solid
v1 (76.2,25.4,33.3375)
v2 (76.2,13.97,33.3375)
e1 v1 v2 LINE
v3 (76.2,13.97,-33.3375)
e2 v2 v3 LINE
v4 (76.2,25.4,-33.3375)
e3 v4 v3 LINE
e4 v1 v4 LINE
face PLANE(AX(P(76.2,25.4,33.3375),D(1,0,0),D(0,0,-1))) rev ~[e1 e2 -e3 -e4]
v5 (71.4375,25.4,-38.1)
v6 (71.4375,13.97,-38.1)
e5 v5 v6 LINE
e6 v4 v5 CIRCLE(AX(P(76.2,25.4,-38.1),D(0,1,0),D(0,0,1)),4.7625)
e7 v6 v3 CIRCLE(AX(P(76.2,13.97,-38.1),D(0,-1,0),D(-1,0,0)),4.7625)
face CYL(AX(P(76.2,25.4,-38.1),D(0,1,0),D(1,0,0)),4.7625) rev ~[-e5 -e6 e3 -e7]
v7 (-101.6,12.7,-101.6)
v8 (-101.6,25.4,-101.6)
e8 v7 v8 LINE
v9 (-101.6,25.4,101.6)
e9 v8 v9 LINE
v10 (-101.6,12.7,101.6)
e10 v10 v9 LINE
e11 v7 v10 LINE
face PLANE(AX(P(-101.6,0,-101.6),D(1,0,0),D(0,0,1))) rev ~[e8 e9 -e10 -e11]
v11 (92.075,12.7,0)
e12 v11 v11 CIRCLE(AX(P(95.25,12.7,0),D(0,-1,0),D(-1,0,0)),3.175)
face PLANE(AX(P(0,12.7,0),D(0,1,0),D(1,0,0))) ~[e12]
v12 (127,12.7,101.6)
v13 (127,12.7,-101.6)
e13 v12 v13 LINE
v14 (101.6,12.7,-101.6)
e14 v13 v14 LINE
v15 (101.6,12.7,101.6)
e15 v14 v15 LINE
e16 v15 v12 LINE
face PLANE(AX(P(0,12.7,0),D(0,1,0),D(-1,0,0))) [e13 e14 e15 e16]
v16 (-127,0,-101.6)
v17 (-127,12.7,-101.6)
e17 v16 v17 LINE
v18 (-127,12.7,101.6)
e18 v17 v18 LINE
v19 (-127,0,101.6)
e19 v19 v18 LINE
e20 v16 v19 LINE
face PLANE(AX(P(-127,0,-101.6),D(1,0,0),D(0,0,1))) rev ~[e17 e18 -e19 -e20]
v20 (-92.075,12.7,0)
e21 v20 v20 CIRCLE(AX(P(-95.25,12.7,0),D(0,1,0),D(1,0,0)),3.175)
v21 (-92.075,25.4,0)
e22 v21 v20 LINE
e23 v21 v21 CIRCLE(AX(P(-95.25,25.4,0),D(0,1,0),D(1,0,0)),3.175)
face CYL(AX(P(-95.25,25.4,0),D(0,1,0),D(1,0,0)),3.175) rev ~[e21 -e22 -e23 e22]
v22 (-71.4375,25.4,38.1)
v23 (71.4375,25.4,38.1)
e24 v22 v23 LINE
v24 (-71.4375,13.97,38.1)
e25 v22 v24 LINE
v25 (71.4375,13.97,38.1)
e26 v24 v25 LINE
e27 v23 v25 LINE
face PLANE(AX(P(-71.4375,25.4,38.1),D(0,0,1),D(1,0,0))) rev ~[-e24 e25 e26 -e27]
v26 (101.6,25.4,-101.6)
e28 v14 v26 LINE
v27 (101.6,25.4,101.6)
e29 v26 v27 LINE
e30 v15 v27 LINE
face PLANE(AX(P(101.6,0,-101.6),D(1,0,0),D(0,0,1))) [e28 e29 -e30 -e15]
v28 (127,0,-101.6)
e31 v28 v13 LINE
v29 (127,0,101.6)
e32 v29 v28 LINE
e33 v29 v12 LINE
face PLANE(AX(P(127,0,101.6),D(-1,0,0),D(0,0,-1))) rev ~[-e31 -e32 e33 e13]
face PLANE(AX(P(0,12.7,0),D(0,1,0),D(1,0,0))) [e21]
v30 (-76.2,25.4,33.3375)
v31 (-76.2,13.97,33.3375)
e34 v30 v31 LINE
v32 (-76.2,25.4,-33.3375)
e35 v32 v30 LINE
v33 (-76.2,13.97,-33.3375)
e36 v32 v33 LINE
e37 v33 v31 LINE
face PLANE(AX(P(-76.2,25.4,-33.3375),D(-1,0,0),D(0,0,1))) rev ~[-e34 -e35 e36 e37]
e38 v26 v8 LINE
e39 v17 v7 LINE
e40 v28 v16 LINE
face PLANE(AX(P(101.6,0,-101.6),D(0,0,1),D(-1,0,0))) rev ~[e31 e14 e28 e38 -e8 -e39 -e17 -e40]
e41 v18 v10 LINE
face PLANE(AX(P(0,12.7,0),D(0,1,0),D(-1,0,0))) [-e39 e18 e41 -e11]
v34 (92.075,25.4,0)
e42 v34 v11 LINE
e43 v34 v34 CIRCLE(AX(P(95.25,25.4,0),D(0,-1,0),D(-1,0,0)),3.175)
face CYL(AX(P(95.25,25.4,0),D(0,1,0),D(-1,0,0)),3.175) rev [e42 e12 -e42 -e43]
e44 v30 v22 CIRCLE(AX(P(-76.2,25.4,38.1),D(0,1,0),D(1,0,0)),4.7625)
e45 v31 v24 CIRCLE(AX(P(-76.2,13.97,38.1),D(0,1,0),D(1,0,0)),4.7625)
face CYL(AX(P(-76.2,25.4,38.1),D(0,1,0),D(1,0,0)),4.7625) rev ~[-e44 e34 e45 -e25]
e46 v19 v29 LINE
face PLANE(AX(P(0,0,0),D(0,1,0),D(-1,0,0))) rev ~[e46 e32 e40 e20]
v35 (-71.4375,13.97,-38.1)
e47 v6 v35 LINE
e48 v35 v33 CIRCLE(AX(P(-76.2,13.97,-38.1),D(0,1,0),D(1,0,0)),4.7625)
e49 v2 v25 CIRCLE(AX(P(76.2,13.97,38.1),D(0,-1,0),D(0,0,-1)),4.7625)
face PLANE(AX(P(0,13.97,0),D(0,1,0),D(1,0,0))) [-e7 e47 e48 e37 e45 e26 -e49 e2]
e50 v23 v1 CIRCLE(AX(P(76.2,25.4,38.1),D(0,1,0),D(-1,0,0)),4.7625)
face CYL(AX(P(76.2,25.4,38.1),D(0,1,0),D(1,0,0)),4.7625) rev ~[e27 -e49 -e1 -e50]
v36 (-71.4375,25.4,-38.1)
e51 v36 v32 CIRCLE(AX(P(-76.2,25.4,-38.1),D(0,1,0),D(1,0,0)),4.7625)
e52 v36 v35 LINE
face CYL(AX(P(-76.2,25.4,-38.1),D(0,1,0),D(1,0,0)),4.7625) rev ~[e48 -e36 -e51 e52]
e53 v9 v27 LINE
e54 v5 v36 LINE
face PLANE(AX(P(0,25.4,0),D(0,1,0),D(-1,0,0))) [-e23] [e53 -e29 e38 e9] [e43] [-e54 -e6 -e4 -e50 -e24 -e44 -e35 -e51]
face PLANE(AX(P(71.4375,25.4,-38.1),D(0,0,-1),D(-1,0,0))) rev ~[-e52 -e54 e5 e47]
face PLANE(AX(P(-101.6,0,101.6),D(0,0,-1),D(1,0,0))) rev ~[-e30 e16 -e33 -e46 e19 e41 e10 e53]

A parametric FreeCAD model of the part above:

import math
import FreeCAD as App
import Part
import Sketcher
from FreeCAD import Vector
Q = App.Units.Quantity


def add_polygon(sketch, points):
    """Adds a closed chain of lines whose ends are joined by coincident constraints."""
    first, n = sketch.GeometryCount, len(points)
    for a, b in zip(points, points[1:] + points[:1]):
        sketch.addGeometry(Part.LineSegment(App.Vector(*a, 0), App.Vector(*b, 0)), False)
    for i in range(n):
        sketch.addConstraint(Sketcher.Constraint("Coincident", first + i, 2, first + (i + 1) % n, 1))

doc = App.newDocument("Part")
body = doc.addObject("PartDesign::Body", "Body")

sketch1 = doc.addObject("Sketcher::SketchObject", "Sketch")
body.addObject(sketch1)
sketch1.AttachmentSupport = (doc.XZ_Plane, [""])
sketch1.MapMode = "FlatFace"
add_polygon(sketch1, [(-102, -102), (-102, 102), (102, 102), (102, -102)])
sketch1.addConstraint(Sketcher.Constraint("Vertical", 0))
sketch1.addConstraint(Sketcher.Constraint("Horizontal", 1))
sketch1.addConstraint(Sketcher.Constraint("Vertical", 2))
sketch1.addConstraint(Sketcher.Constraint("Horizontal", 3))
sketch1.addConstraint(Sketcher.Constraint("Symmetric", 0, 2, 2, 2, -1, 1))
sketch1.addConstraint(Sketcher.Constraint("Equal", 3, 0))
sketch1.addConstraint(Sketcher.Constraint("DistanceX", 1, 1, 1, 2, Q("8 in")))
pad1 = doc.addObject("PartDesign::Pad", "Pad")
body.addObject(pad1)
pad1.Profile = sketch1
pad1.Length = Q("1 in")
pad1.Reversed = True

sketch2 = doc.addObject("Sketcher::SketchObject", "Sketch001")
body.addObject(sketch2)
sketch2.AttachmentSupport = (doc.XZ_Plane, [""])
sketch2.MapMode = "FlatFace"
add_polygon(sketch2, [(-127, -102), (-127, 102), (-102, 102), (-102, -102)])
add_polygon(sketch2, [(102, -102), (102, 102), (127, 102), (127, -102)])
sketch2.addConstraint(Sketcher.Constraint("Vertical", 0))
sketch2.addConstraint(Sketcher.Constraint("Horizontal", 1))
sketch2.addConstraint(Sketcher.Constraint("Vertical", 2))
sketch2.addConstraint(Sketcher.Constraint("Horizontal", 3))
sketch2.addConstraint(Sketcher.Constraint("Vertical", 4))
sketch2.addConstraint(Sketcher.Constraint("Horizontal", 5))
sketch2.addConstraint(Sketcher.Constraint("Vertical", 6))
sketch2.addConstraint(Sketcher.Constraint("Horizontal", 7))
sketch2.addConstraint(Sketcher.Constraint("Symmetric", 2, 2, 4, 2, -1, 1))
sketch2.addConstraint(Sketcher.Constraint("Symmetric", 0, 2, 6, 2, -1, 1))
sketch2.addConstraint(Sketcher.Constraint("Horizontal", 1, 2, 4, 2))
sketch2.addConstraint(Sketcher.Constraint("DistanceX", 1, 1, 1, 2, Q("1 in")))
sketch2.addConstraint(Sketcher.Constraint("DistanceY", 0, 1, 0, 2, Q("8 in")))
sketch2.addConstraint(Sketcher.Constraint("DistanceX", 1, 2, 4, 2, Q("8 in")))
pad2 = doc.addObject("PartDesign::Pad", "Pad001")
body.addObject(pad2)
pad2.Profile = sketch2
pad2.Length = Q("0.5 in")
pad2.Reversed = True

sketch3 = doc.addObject("Sketcher::SketchObject", "Sketch002")
body.addObject(sketch3)
sketch3.AttachmentSupport = (doc.XZ_Plane, [""])
sketch3.MapMode = "FlatFace"
sketch3.AttachmentOffset = App.Placement(Vector(0, 0, -1 * 25.4), App.Rotation())
sketch3.addGeometry(Part.ArcOfCircle(Part.Circle(Vector(-76.2, 38.1, 0), Vector(0, 0, 1), 4.8), math.radians(0), math.radians(270)), False)
sketch3.addGeometry(Part.LineSegment(Vector(-71.4, 38.1, 0), Vector(71.4, 38.1, 0)), False)
sketch3.addGeometry(Part.ArcOfCircle(Part.Circle(Vector(76.2, 38.1, 0), Vector(0, 0, 1), 4.8), math.radians(-90), math.radians(180)), False)
sketch3.addGeometry(Part.LineSegment(Vector(76.2, 33.3, 0), Vector(76.2, -33.3, 0)), False)
sketch3.addGeometry(Part.ArcOfCircle(Part.Circle(Vector(76.2, -38.1, 0), Vector(0, 0, 1), 4.8), math.radians(180), math.radians(450)), False)
sketch3.addGeometry(Part.LineSegment(Vector(71.4, -38.1, 0), Vector(-71.4, -38.1, 0)), False)
sketch3.addGeometry(Part.ArcOfCircle(Part.Circle(Vector(-76.2, -38.1, 0), Vector(0, 0, 1), 4.8), math.radians(90), math.radians(360)), False)
sketch3.addGeometry(Part.LineSegment(Vector(-76.2, -33.3, 0), Vector(-76.2, 33.3, 0)), False)
sketch3.addConstraint(Sketcher.Constraint("Coincident", 0, 1, 1, 1))
sketch3.addConstraint(Sketcher.Constraint("Coincident", 1, 2, 2, 2))
sketch3.addConstraint(Sketcher.Constraint("Coincident", 2, 1, 3, 1))
sketch3.addConstraint(Sketcher.Constraint("Coincident", 3, 2, 4, 2))
sketch3.addConstraint(Sketcher.Constraint("Coincident", 4, 1, 5, 1))
sketch3.addConstraint(Sketcher.Constraint("Coincident", 5, 2, 6, 2))
sketch3.addConstraint(Sketcher.Constraint("Coincident", 6, 1, 7, 1))
sketch3.addConstraint(Sketcher.Constraint("Coincident", 7, 2, 0, 2))
sketch3.addConstraint(Sketcher.Constraint("Horizontal", 1))
sketch3.addConstraint(Sketcher.Constraint("Vertical", 3))
sketch3.addConstraint(Sketcher.Constraint("Horizontal", 5))
sketch3.addConstraint(Sketcher.Constraint("Vertical", 7))
sketch3.addConstraint(Sketcher.Constraint("Equal", 0, 2))
sketch3.addConstraint(Sketcher.Constraint("Equal", 2, 4))
sketch3.addConstraint(Sketcher.Constraint("Equal", 4, 6))
sketch3.addConstraint(Sketcher.Constraint("Symmetric", 0, 3, 4, 3, -1, 1))
sketch3.addConstraint(Sketcher.Constraint("Symmetric", 2, 3, 6, 3, -1, 1))
sketch3.addConstraint(Sketcher.Constraint("Symmetric", 0, 3, 2, 3, -2))
sketch3.addConstraint(Sketcher.Constraint("Horizontal", 2, 3, 0, 1))
sketch3.addConstraint(Sketcher.Constraint("Horizontal", 6, 3, 4, 1))
sketch3.addConstraint(Sketcher.Constraint("Vertical", 4, 3, 2, 1))
sketch3.addConstraint(Sketcher.Constraint("Vertical", 0, 3, 6, 1))
sketch3.addConstraint(Sketcher.Constraint("DistanceX", 0, 3, -1, 1, Q("3 in")))
sketch3.addConstraint(Sketcher.Constraint("Radius", 0, Q("0.1875 in")))
sketch3.addConstraint(Sketcher.Constraint("DistanceY", 4, 3, 2, 3, Q("3 in")))
pocket1 = doc.addObject("PartDesign::Pocket", "Pocket")
body.addObject(pocket1)
pocket1.Profile = sketch3
pocket1.Length = Q("0.45 in")
pocket1.Reversed = True

sketch4 = doc.addObject("Sketcher::SketchObject", "Sketch003")
body.addObject(sketch4)
sketch4.AttachmentSupport = (doc.XZ_Plane, [""])
sketch4.MapMode = "FlatFace"
sketch4.AttachmentOffset = App.Placement(Vector(0, 0, -1 * 25.4), App.Rotation())
sketch4.addGeometry(Part.Circle(Vector(-95.2, 0, 0), Vector(0, 0, 1), 3.2), False)
sketch4.addConstraint(Sketcher.Constraint("PointOnObject", 0, 3, -1))
sketch4.addConstraint(Sketcher.Constraint("Diameter", 0, Q("0.25 in")))
sketch4.addConstraint(Sketcher.Constraint("DistanceX", 0, 3, -1, 1, Q("3.75 in")))
pocket2 = doc.addObject("PartDesign::Pocket", "Pocket001")
body.addObject(pocket2)
pocket2.Profile = sketch4
pocket2.Length = Q("0.5 in")
pocket2.Reversed = True
doc.recompute()

mirrored = doc.addObject("PartDesign::Mirrored", "Mirrored")
body.addObject(mirrored)
mirrored.Originals = [pocket2]
mirrored.MirrorPlane = (doc.YZ_Plane, [""])
body.Tip = mirrored

doc.recompute()
